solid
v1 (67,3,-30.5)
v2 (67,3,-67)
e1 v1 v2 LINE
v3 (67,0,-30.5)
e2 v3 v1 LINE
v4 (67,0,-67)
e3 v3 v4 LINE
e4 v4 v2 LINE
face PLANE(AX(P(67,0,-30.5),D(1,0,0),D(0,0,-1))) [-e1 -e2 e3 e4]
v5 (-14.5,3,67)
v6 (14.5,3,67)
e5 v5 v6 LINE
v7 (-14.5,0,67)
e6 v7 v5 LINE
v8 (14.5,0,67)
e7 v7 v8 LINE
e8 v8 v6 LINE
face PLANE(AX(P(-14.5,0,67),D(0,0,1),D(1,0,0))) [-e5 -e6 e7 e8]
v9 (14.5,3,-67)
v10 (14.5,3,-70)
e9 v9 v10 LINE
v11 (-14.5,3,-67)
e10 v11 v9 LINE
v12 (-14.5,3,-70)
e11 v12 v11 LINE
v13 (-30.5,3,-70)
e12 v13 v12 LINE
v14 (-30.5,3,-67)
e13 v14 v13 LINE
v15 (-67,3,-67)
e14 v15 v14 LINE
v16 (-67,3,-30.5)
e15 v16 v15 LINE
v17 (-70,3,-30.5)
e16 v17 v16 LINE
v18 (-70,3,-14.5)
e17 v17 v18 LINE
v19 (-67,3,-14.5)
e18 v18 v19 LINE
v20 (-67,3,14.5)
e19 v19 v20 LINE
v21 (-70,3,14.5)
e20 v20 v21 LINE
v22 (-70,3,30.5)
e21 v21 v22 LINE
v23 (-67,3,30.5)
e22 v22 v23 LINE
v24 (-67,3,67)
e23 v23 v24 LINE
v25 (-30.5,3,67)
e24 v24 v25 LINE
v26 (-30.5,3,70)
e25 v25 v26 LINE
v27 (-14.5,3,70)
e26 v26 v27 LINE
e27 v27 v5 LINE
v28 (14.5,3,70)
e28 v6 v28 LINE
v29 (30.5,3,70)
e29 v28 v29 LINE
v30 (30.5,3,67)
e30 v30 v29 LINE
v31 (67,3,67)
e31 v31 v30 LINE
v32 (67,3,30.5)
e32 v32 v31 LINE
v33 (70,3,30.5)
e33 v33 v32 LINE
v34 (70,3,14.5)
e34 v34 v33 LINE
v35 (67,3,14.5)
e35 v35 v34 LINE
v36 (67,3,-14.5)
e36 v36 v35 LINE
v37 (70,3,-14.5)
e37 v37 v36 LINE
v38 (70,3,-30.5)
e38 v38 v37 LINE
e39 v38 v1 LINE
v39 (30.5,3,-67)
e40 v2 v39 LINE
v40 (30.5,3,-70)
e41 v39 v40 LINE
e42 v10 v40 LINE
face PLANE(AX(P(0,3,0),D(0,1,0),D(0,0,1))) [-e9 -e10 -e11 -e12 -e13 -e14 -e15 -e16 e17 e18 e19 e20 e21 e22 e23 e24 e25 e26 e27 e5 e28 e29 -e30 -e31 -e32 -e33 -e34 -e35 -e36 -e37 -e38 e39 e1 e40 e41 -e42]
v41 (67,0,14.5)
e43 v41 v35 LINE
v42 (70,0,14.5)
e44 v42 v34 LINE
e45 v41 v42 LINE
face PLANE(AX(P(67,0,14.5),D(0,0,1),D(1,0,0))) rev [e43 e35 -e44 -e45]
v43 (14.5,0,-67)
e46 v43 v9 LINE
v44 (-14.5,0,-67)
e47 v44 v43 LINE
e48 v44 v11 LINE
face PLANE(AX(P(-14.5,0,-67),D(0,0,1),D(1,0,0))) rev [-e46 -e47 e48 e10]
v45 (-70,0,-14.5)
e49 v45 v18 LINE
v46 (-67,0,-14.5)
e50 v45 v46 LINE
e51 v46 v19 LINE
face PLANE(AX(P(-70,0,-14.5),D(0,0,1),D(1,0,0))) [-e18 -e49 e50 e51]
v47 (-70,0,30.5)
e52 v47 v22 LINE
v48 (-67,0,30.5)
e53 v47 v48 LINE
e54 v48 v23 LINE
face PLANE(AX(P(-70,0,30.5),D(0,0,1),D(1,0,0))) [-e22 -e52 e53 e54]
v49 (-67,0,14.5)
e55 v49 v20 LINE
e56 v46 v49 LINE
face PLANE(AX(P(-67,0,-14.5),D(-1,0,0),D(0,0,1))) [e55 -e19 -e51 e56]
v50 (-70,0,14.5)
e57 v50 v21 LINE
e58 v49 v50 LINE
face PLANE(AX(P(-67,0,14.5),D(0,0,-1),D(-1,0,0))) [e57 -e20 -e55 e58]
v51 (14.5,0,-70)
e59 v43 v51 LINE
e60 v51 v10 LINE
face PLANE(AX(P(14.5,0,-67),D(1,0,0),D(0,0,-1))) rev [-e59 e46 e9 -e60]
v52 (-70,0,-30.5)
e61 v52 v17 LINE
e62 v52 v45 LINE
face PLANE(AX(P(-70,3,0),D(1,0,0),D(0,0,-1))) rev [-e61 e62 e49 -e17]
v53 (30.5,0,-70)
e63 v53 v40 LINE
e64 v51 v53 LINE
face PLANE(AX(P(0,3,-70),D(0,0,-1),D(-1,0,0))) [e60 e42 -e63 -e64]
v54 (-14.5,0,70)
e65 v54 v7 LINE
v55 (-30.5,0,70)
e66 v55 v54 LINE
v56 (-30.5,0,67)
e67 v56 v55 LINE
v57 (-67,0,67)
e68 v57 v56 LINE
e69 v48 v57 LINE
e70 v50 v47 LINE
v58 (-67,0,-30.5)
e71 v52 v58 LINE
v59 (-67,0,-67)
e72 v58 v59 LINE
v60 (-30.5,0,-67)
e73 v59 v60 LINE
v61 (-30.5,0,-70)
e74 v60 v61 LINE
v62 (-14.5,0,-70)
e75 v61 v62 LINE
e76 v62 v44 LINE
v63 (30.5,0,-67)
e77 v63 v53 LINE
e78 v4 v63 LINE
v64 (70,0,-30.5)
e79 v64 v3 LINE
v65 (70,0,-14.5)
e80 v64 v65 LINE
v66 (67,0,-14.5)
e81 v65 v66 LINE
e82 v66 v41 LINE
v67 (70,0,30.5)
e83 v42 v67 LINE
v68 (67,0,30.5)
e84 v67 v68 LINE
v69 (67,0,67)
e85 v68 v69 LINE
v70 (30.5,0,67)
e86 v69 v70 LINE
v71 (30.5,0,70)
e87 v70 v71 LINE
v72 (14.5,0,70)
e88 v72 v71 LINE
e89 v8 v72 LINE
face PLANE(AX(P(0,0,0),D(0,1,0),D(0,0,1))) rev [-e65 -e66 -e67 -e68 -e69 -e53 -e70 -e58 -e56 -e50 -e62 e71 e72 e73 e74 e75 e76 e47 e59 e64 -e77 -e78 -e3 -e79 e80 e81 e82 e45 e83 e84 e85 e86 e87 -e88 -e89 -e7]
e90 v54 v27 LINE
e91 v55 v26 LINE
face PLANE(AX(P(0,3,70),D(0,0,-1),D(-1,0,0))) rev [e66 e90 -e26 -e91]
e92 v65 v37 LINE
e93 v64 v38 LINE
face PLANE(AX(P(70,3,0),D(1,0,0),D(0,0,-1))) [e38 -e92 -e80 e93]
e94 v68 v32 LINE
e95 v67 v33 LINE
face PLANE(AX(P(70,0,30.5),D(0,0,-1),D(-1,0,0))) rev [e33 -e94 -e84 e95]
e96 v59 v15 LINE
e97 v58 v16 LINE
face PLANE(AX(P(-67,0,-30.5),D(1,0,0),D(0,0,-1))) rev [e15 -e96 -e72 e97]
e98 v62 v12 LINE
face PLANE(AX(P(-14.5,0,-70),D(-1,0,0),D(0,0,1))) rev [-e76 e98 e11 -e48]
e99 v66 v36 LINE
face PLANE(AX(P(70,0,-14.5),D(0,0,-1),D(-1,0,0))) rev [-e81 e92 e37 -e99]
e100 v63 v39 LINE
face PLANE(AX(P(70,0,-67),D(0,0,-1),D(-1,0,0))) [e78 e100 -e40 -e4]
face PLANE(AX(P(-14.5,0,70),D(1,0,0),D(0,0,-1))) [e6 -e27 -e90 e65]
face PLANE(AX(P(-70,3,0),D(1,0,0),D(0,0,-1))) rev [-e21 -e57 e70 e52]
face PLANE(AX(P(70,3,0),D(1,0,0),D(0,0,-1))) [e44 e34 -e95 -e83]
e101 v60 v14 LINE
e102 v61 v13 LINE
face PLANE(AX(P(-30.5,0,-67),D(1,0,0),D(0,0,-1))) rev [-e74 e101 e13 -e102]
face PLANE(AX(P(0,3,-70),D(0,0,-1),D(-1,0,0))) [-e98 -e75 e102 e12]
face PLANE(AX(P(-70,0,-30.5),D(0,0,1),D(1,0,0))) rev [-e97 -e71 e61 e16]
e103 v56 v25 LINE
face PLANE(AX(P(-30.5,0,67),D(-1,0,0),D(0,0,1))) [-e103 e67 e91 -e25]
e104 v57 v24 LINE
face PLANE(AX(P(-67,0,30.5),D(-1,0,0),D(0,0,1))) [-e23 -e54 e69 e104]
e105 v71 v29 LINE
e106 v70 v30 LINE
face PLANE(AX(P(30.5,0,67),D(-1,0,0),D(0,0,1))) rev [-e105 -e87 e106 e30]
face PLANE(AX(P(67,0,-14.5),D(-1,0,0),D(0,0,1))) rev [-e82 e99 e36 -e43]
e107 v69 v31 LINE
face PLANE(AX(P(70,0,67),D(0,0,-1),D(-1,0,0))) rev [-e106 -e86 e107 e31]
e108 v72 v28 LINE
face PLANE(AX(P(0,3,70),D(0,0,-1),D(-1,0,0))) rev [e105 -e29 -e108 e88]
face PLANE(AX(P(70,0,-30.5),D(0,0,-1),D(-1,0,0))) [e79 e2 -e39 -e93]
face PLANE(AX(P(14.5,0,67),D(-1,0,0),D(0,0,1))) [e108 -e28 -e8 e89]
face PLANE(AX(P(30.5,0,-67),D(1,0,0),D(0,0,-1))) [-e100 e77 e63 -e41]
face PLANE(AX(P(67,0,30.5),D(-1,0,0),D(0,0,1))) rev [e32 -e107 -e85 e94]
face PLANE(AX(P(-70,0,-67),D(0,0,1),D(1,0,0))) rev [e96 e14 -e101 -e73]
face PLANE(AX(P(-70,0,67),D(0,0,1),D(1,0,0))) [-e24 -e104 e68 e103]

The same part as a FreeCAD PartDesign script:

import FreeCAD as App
import Part
import Sketcher
Q = App.Units.Quantity


def add_polygon(sketch, points):
    """Adds a closed chain of lines whose ends are joined by coincident constraints."""
    first, n = sketch.GeometryCount, len(points)
    for a, b in zip(points, points[1:] + points[:1]):
        sketch.addGeometry(Part.LineSegment(App.Vector(*a, 0), App.Vector(*b, 0)), False)
    for i in range(n):
        sketch.addConstraint(Sketcher.Constraint("Coincident", first + i, 2, first + (i + 1) % n, 1))

doc = App.newDocument("Part")
params = doc.addObject("Spreadsheet::Sheet", "Params")
for row, (alias, value) in enumerate([
    ("sketch1_width", "140 mm"),
    ("pad1_length", "3 mm"),
    ("sketch2_width", "3 mm"),
    ("sketch2_width2", "29 mm"),
    ("sketch2_width3", "36.5 mm"),
    ("pocket1_length", "3 mm"),
], start=1):
    params.set(f"A{row}", alias)
    params.set(f"B{row}", "=" + value)
    params.setAlias(f"B{row}", alias)

body = doc.addObject("PartDesign::Body", "Body")

# Sketch on XZ plane
sketch1 = doc.addObject("Sketcher::SketchObject", "Sketch")
body.addObject(sketch1)
sketch1.AttachmentSupport = (doc.XZ_Plane, [""])
sketch1.MapMode = "FlatFace"
add_polygon(sketch1, [(70, -70), (-70, -70), (-70, 70), (70, 70)])  # lines 0-3
sketch1.addConstraint(Sketcher.Constraint("Horizontal", 0))
sketch1.addConstraint(Sketcher.Constraint("Vertical", 1))
sketch1.addConstraint(Sketcher.Constraint("Horizontal", 2))
sketch1.addConstraint(Sketcher.Constraint("Vertical", 3))
sketch1.addConstraint(Sketcher.Constraint("Symmetric", 0, 2, 2, 2, -1, 1))
sketch1.addConstraint(Sketcher.Constraint("Equal", 2, 1))
sketch1.addConstraint(Sketcher.Constraint("DistanceX", 0, 2, 0, 1, Q("140 mm")))
sketch1.setExpression("Constraints[10]", "Params.sketch1_width")
pad1 = doc.addObject("PartDesign::Pad", "Pad")
body.addObject(pad1)
pad1.Profile = sketch1
pad1.setExpression("Length", "Params.pad1_length")
pad1.Reversed = True

# Sketch on XZ plane
sketch2 = doc.addObject("Sketcher::SketchObject", "Sketch001")
body.addObject(sketch2)
sketch2.AttachmentSupport = (doc.XZ_Plane, [""])
sketch2.MapMode = "FlatFace"
sketch2.AttachmentOffset = App.Placement(App.Vector(0, 0, -3), App.Rotation())
add_polygon(sketch2, [(-70, -70), (-70, -30.5), (-67, -30.5), (-67, -67), (-30.5, -67), (-30.5, -70)])  # lines 0-5
add_polygon(sketch2, [(30.5, -70), (30.5, -67), (67, -67), (67, -30.5), (70, -30.5), (70, -70)])  # lines 6-11
add_polygon(sketch2, [(70, 70), (70, 30.5), (67, 30.5), (67, 67), (30.5, 67), (30.5, 70)])  # lines 12-17
add_polygon(sketch2, [(-30.5, 70), (-30.5, 67), (-67, 67), (-67, 30.5), (-70, 30.5), (-70, 70)])  # lines 18-23
add_polygon(sketch2, [(-14.5, -70), (-14.5, -67), (14.5, -67), (14.5, -70)])  # lines 24-27
add_polygon(sketch2, [(-14.5, 67), (-14.5, 70), (14.5, 70), (14.5, 67)])  # lines 28-31
add_polygon(sketch2, [(67, -14.5), (67, 14.5), (70, 14.5), (70, -14.5)])  # lines 32-35
add_polygon(sketch2, [(-70, -14.5), (-70, 14.5), (-67, 14.5), (-67, -14.5)])  # lines 36-39
sketch2.addConstraint(Sketcher.Constraint("Vertical", 0))
sketch2.addConstraint(Sketcher.Constraint("Horizontal", 1))
sketch2.addConstraint(Sketcher.Constraint("Vertical", 2))
sketch2.addConstraint(Sketcher.Constraint("Horizontal", 3))
sketch2.addConstraint(Sketcher.Constraint("Vertical", 4))
sketch2.addConstraint(Sketcher.Constraint("Horizontal", 5))
sketch2.addConstraint(Sketcher.Constraint("Vertical", 6))
sketch2.addConstraint(Sketcher.Constraint("Horizontal", 7))
sketch2.addConstraint(Sketcher.Constraint("Vertical", 8))
sketch2.addConstraint(Sketcher.Constraint("Horizontal", 9))
sketch2.addConstraint(Sketcher.Constraint("Vertical", 10))
sketch2.addConstraint(Sketcher.Constraint("Horizontal", 11))
sketch2.addConstraint(Sketcher.Constraint("Vertical", 12))
sketch2.addConstraint(Sketcher.Constraint("Horizontal", 13))
sketch2.addConstraint(Sketcher.Constraint("Vertical", 14))
sketch2.addConstraint(Sketcher.Constraint("Horizontal", 15))
sketch2.addConstraint(Sketcher.Constraint("Vertical", 16))
sketch2.addConstraint(Sketcher.Constraint("Horizontal", 17))
sketch2.addConstraint(Sketcher.Constraint("Vertical", 18))
sketch2.addConstraint(Sketcher.Constraint("Horizontal", 19))
sketch2.addConstraint(Sketcher.Constraint("Vertical", 20))
sketch2.addConstraint(Sketcher.Constraint("Horizontal", 21))
sketch2.addConstraint(Sketcher.Constraint("Vertical", 22))
sketch2.addConstraint(Sketcher.Constraint("Horizontal", 23))
sketch2.addConstraint(Sketcher.Constraint("Vertical", 24))
sketch2.addConstraint(Sketcher.Constraint("Horizontal", 25))
sketch2.addConstraint(Sketcher.Constraint("Vertical", 26))
sketch2.addConstraint(Sketcher.Constraint("Horizontal", 27))
sketch2.addConstraint(Sketcher.Constraint("Vertical", 28))
sketch2.addConstraint(Sketcher.Constraint("Horizontal", 29))
sketch2.addConstraint(Sketcher.Constraint("Vertical", 30))
sketch2.addConstraint(Sketcher.Constraint("Horizontal", 31))
sketch2.addConstraint(Sketcher.Constraint("Vertical", 32))
sketch2.addConstraint(Sketcher.Constraint("Horizontal", 33))
sketch2.addConstraint(Sketcher.Constraint("Vertical", 34))
sketch2.addConstraint(Sketcher.Constraint("Horizontal", 35))
sketch2.addConstraint(Sketcher.Constraint("Vertical", 36))
sketch2.addConstraint(Sketcher.Constraint("Horizontal", 37))
sketch2.addConstraint(Sketcher.Constraint("Vertical", 38))
sketch2.addConstraint(Sketcher.Constraint("Horizontal", 39))
sketch2.addConstraint(Sketcher.Constraint("Symmetric", 0, 2, 12, 2, -1, 1))
sketch2.addConstraint(Sketcher.Constraint("Symmetric", 2, 2, 14, 2, -1, 1))
sketch2.addConstraint(Sketcher.Constraint("Symmetric", 4, 2, 16, 2, -1, 1))
sketch2.addConstraint(Sketcher.Constraint("Symmetric", 6, 2, 18, 2, -1, 1))
sketch2.addConstraint(Sketcher.Constraint("Symmetric", 8, 2, 20, 2, -1, 1))
sketch2.addConstraint(Sketcher.Constraint("Symmetric", 10, 2, 22, 2, -1, 1))
sketch2.addConstraint(Sketcher.Constraint("Symmetric", 26, 2, 28, 2, -1, 1))
sketch2.addConstraint(Sketcher.Constraint("Symmetric", 24, 2, 30, 2, -1, 1))
sketch2.addConstraint(Sketcher.Constraint("Symmetric", 34, 2, 36, 2, -1, 1))
sketch2.addConstraint(Sketcher.Constraint("Symmetric", 32, 2, 38, 2, -1, 1))
sketch2.addConstraint(Sketcher.Constraint("Symmetric", 3, 2, 6, 2, -2))
sketch2.addConstraint(Sketcher.Constraint("Symmetric", 1, 2, 8, 2, -2))
sketch2.addConstraint(Sketcher.Constraint("Symmetric", 5, 2, 10, 2, -2))
sketch2.addConstraint(Sketcher.Constraint("Horizontal", 7, 2, 24, 2))
sketch2.addConstraint(Sketcher.Constraint("Horizontal", 11, 2, 26, 2))
sketch2.addConstraint(Sketcher.Constraint("Horizontal", 33, 2, 36, 2))
sketch2.addConstraint(Sketcher.Constraint("Vertical", 27, 2, 28, 2))
sketch2.addConstraint(Sketcher.Constraint("Vertical", 14, 2, 32, 2))
sketch2.addConstraint(Sketcher.Constraint("Vertical", 17, 2, 33, 2))
sketch2.addConstraint(Sketcher.Constraint("Equal", 23, 0))
sketch2.addConstraint(Sketcher.Constraint("Equal", 19, 2))
sketch2.addConstraint(Sketcher.Constraint("Equal", 31, 32))
sketch2.addConstraint(Sketcher.Constraint("DistanceX", 1, 1, 1, 2, Q("3 mm")))
sketch2.addConstraint(Sketcher.Constraint("DistanceX", 25, 1, 25, 2, Q("29 mm")))
sketch2.addConstraint(Sketcher.Constraint("DistanceX", 3, 1, 3, 2, Q("36.5 mm")))
sketch2.addConstraint(Sketcher.Constraint("DistanceX", 0, 2, -1, 1, Q("70 mm")))
sketch2.addConstraint(Sketcher.Constraint("DistanceY", 2, 2, -1, 1, Q("67 mm")))
sketch2.setExpression("Constraints[102]", "Params.sketch2_width")
sketch2.setExpression("Constraints[103]", "Params.sketch2_width2")
sketch2.setExpression("Constraints[104]", "Params.sketch2_width3")
pocket1 = doc.addObject("PartDesign::Pocket", "Pocket")
body.addObject(pocket1)
pocket1.Profile = sketch2
pocket1.setExpression("Length", "Params.pocket1_length")
pocket1.Reversed = True

doc.recompute()
